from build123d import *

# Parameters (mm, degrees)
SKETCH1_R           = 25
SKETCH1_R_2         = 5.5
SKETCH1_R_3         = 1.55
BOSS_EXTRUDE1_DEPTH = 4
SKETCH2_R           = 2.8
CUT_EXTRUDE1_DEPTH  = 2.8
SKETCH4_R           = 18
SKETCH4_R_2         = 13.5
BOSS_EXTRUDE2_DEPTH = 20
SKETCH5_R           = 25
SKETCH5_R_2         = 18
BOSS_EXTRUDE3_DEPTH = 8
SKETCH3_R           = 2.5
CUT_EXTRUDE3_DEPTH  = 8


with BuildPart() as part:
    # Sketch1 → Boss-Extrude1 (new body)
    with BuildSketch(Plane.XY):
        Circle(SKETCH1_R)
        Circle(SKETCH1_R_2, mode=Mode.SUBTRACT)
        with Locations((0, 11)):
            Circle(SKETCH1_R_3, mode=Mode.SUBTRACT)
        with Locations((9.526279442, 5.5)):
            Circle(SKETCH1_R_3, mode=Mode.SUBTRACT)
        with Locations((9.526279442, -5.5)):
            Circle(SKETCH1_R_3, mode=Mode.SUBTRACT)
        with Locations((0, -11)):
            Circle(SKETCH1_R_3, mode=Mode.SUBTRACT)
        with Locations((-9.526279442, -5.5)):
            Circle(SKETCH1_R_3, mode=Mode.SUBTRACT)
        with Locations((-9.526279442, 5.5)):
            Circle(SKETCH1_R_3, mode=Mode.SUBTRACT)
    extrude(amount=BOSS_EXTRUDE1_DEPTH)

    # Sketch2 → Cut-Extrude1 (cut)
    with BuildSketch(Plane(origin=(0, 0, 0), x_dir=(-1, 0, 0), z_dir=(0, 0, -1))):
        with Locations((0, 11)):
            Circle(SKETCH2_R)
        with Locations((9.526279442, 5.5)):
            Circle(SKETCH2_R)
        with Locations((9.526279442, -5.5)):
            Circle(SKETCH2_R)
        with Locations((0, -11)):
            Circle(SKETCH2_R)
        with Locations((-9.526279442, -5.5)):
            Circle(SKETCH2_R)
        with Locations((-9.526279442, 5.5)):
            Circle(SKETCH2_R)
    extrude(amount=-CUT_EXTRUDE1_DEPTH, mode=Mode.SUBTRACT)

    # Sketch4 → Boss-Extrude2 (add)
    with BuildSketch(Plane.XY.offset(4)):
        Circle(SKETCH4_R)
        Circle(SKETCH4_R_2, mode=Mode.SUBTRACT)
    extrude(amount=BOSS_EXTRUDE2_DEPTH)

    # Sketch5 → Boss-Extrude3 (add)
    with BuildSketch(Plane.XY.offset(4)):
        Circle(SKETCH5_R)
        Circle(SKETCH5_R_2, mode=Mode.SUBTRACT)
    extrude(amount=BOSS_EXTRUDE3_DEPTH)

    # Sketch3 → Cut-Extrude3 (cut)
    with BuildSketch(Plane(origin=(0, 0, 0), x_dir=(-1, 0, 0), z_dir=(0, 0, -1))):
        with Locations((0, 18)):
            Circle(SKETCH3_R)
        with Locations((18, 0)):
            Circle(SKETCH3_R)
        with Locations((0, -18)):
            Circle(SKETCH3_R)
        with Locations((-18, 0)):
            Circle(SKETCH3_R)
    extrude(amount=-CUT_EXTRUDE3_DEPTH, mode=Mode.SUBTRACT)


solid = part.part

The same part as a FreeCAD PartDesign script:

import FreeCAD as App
import Part
import Sketcher
from FreeCAD import Vector

doc = App.newDocument("Part")
params = doc.addObject("Spreadsheet::Sheet", "Params")
for row, (alias, value) in enumerate([
    ("sketch1_diameter", "50 mm"),
    ("sketch1_diameter2", "11 mm"),
    ("sketch1_diameter3", "3.1 mm"),
    ("pad1_length", "4 mm"),
    ("sketch2_diameter", "5.6 mm"),
    ("pocket1_length", "2.8 mm"),
    ("sketch3_diameter", "36 mm"),
    ("sketch3_diameter2", "27 mm"),
    ("pad2_length", "20 mm"),
    ("sketch4_diameter", "50 mm"),
    ("sketch4_diameter2", "36 mm"),
    ("pad3_length", "8 mm"),
    ("sketch5_diameter", "5 mm"),
    ("pocket2_length", "8 mm"),
], start=1):
    params.set(f"A{row}", alias)
    params.set(f"B{row}", "=" + value)
    params.setAlias(f"B{row}", alias)

body = doc.addObject("PartDesign::Body", "Body")

# Sketch on XY plane
sketch1 = doc.addObject("Sketcher::SketchObject", "Sketch")
body.addObject(sketch1)
sketch1.AttachmentSupport = (doc.XY_Plane, [""])
sketch1.MapMode = "FlatFace"
sketch1.addGeometry(Part.Circle(Vector(0, 0, 0), Vector(0, 0, 1), 25), False)
sketch1.addGeometry(Part.Circle(Vector(0, -11, 0), Vector(0, 0, 1), 1.6), False)
sketch1.addGeometry(Part.Circle(Vector(-9.5, -5.5, 0), Vector(0, 0, 1), 1.6), False)
sketch1.addGeometry(Part.Circle(Vector(9.5, -5.5, 0), Vector(0, 0, 1), 1.6), False)
sketch1.addGeometry(Part.Circle(Vector(-9.5, 5.5, 0), Vector(0, 0, 1), 1.6), False)
sketch1.addGeometry(Part.Circle(Vector(0, 0, 0), Vector(0, 0, 1), 5.5), False)
sketch1.addGeometry(Part.Circle(Vector(0, 11, 0), Vector(0, 0, 1), 1.6), False)
sketch1.addGeometry(Part.Circle(Vector(9.5, 5.5, 0), Vector(0, 0, 1), 1.6), False)
sketch1.addConstraint(Sketcher.Constraint("Coincident", 0, 3, -1, 1))
sketch1.addConstraint(Sketcher.Constraint("Coincident", 5, 3, -1, 1))
sketch1.addConstraint(Sketcher.Constraint("Equal", 1, 2))
sketch1.addConstraint(Sketcher.Constraint("Equal", 2, 3))
sketch1.addConstraint(Sketcher.Constraint("Equal", 3, 4))
sketch1.addConstraint(Sketcher.Constraint("Equal", 4, 6))
sketch1.addConstraint(Sketcher.Constraint("Equal", 6, 7))
sketch1.addConstraint(Sketcher.Constraint("Symmetric", 3, 3, 4, 3, -1, 1))
sketch1.addConstraint(Sketcher.Constraint("Symmetric", 1, 3, 6, 3, -1, 1))
sketch1.addConstraint(Sketcher.Constraint("Symmetric", 2, 3, 7, 3, -1, 1))
sketch1.addConstraint(Sketcher.Constraint("Symmetric", 2, 3, 3, 3, -2))
sketch1.addConstraint(Sketcher.Constraint("PointOnObject", 1, 3, -2))
sketch1.addConstraint(Sketcher.Constraint("Diameter", 0, 50.0))
sketch1.addConstraint(Sketcher.Constraint("Diameter", 5, 11.0))
sketch1.addConstraint(Sketcher.Constraint("Diameter", 1, 3.1))
sketch1.addConstraint(Sketcher.Constraint("DistanceY", 1, 3, -1, 1, 11.0))
sketch1.addConstraint(Sketcher.Constraint("DistanceY", 2, 3, 4, 3, 11.0))
sketch1.addConstraint(Sketcher.Constraint("DistanceX", 2, 3, -1, 1, 9.526279))
sketch1.setExpression("Constraints[12]", "Params.sketch1_diameter")
sketch1.setExpression("Constraints[13]", "Params.sketch1_diameter2")
sketch1.setExpression("Constraints[14]", "Params.sketch1_diameter3")
pad1 = doc.addObject("PartDesign::Pad", "Pad")
body.addObject(pad1)
pad1.Profile = sketch1
pad1.setExpression("Length", "Params.pad1_length")

# Sketch on XY plane
sketch2 = doc.addObject("Sketcher::SketchObject", "Sketch001")
body.addObject(sketch2)
sketch2.AttachmentSupport = (doc.XY_Plane, [""])
sketch2.MapMode = "FlatFace"
sketch2.addGeometry(Part.Circle(Vector(0, 11, 0), Vector(0, 0, 1), 2.8), False)
sketch2.addGeometry(Part.Circle(Vector(-9.5, 5.5, 0), Vector(0, 0, 1), 2.8), False)
sketch2.addGeometry(Part.Circle(Vector(-9.5, -5.5, 0), Vector(0, 0, 1), 2.8), False)
sketch2.addGeometry(Part.Circle(Vector(0, -11, 0), Vector(0, 0, 1), 2.8), False)
sketch2.addGeometry(Part.Circle(Vector(9.5, -5.5, 0), Vector(0, 0, 1), 2.8), False)
sketch2.addGeometry(Part.Circle(Vector(9.5, 5.5, 0), Vector(0, 0, 1), 2.8), False)
sketch2.addConstraint(Sketcher.Constraint("Equal", 0, 1))
sketch2.addConstraint(Sketcher.Constraint("Equal", 1, 2))
sketch2.addConstraint(Sketcher.Constraint("Equal", 2, 3))
sketch2.addConstraint(Sketcher.Constraint("Equal", 3, 4))
sketch2.addConstraint(Sketcher.Constraint("Equal", 4, 5))
sketch2.addConstraint(Sketcher.Constraint("Symmetric", 0, 3, 3, 3, -1, 1))
sketch2.addConstraint(Sketcher.Constraint("Symmetric", 1, 3, 4, 3, -1, 1))
sketch2.addConstraint(Sketcher.Constraint("Symmetric", 2, 3, 5, 3, -1, 1))
sketch2.addConstraint(Sketcher.Constraint("Symmetric", 2, 3, 4, 3, -2))
sketch2.addConstraint(Sketcher.Constraint("PointOnObject", 0, 3, -2))
sketch2.addConstraint(Sketcher.Constraint("Diameter", 0, 5.6))
sketch2.addConstraint(Sketcher.Constraint("DistanceY", -1, 1, 0, 3, 11.0))
sketch2.addConstraint(Sketcher.Constraint("DistanceY", 2, 3, 1, 3, 11.0))
sketch2.addConstraint(Sketcher.Constraint("DistanceX", 1, 3, -1, 1, 9.526279))
sketch2.setExpression("Constraints[10]", "Params.sketch2_diameter")
pocket1 = doc.addObject("PartDesign::Pocket", "Pocket")
body.addObject(pocket1)
pocket1.Profile = sketch2
pocket1.setExpression("Length", "Params.pocket1_length")
pocket1.Reversed = True

# Sketch on XY plane
sketch3 = doc.addObject("Sketcher::SketchObject", "Sketch002")
body.addObject(sketch3)
sketch3.AttachmentSupport = (doc.XY_Plane, [""])
sketch3.MapMode = "FlatFace"
sketch3.AttachmentOffset = App.Placement(Vector(0, 0, 4), App.Rotation())
sketch3.addGeometry(Part.Circle(Vector(0, 0, 0), Vector(0, 0, 1), 18), False)
sketch3.addGeometry(Part.Circle(Vector(0, 0, 0), Vector(0, 0, 1), 14), False)
sketch3.addConstraint(Sketcher.Constraint("Coincident", 0, 3, -1, 1))
sketch3.addConstraint(Sketcher.Constraint("Coincident", 1, 3, -1, 1))
sketch3.addConstraint(Sketcher.Constraint("Diameter", 0, 36.0))
sketch3.addConstraint(Sketcher.Constraint("Diameter", 1, 27.0))
sketch3.setExpression("Constraints[2]", "Params.sketch3_diameter")
sketch3.setExpression("Constraints[3]", "Params.sketch3_diameter2")
pad2 = doc.addObject("PartDesign::Pad", "Pad001")
body.addObject(pad2)
pad2.Profile = sketch3
pad2.setExpression("Length", "Params.pad2_length")

# Sketch on XY plane
sketch4 = doc.addObject("Sketcher::SketchObject", "Sketch003")
body.addObject(sketch4)
sketch4.AttachmentSupport = (doc.XY_Plane, [""])
sketch4.MapMode = "FlatFace"
sketch4.AttachmentOffset = App.Placement(Vector(0, 0, 4), App.Rotation())
sketch4.addGeometry(Part.Circle(Vector(0, 0, 0), Vector(0, 0, 1), 25), False)
sketch4.addGeometry(Part.Circle(Vector(0, 0, 0), Vector(0, 0, 1), 18), False)
sketch4.addConstraint(Sketcher.Constraint("Coincident", 0, 3, -1, 1))
sketch4.addConstraint(Sketcher.Constraint("Coincident", 1, 3, -1, 1))
sketch4.addConstraint(Sketcher.Constraint("Diameter", 0, 50.0))
sketch4.addConstraint(Sketcher.Constraint("Diameter", 1, 36.0))
sketch4.setExpression("Constraints[2]", "Params.sketch4_diameter")
sketch4.setExpression("Constraints[3]", "Params.sketch4_diameter2")
pad3 = doc.addObject("PartDesign::Pad", "Pad002")
body.addObject(pad3)
pad3.Profile = sketch4
pad3.setExpression("Length", "Params.pad3_length")

# Sketch on XY plane
sketch5 = doc.addObject("Sketcher::SketchObject", "Sketch004")
body.addObject(sketch5)
sketch5.AttachmentSupport = (doc.XY_Plane, [""])
sketch5.MapMode = "FlatFace"
sketch5.addGeometry(Part.Circle(Vector(0, 18, 0), Vector(0, 0, 1), 2.5), False)
sketch5.addGeometry(Part.Circle(Vector(-18, 0, 0), Vector(0, 0, 1), 2.5), False)
sketch5.addGeometry(Part.Circle(Vector(0, -18, 0), Vector(0, 0, 1), 2.5), False)
sketch5.addGeometry(Part.Circle(Vector(18, 0, 0), Vector(0, 0, 1), 2.5), False)
sketch5.addConstraint(Sketcher.Constraint("Equal", 0, 1))
sketch5.addConstraint(Sketcher.Constraint("Equal", 1, 2))
sketch5.addConstraint(Sketcher.Constraint("Equal", 2, 3))
sketch5.addConstraint(Sketcher.Constraint("Symmetric", 0, 3, 2, 3, -1, 1))
sketch5.addConstraint(Sketcher.Constraint("Symmetric", 1, 3, 3, 3, -1, 1))
sketch5.addConstraint(Sketcher.Constraint("PointOnObject", 0, 3, -2))
sketch5.addConstraint(Sketcher.Constraint("PointOnObject", 1, 3, -1))
sketch5.addConstraint(Sketcher.Constraint("Diameter", 0, 5.0))
sketch5.addConstraint(Sketcher.Constraint("DistanceY", -1, 1, 0, 3, 18.0))
sketch5.addConstraint(Sketcher.Constraint("DistanceX", 1, 3, -1, 1, 18.0))
sketch5.setExpression("Constraints[7]", "Params.sketch5_diameter")
pocket2 = doc.addObject("PartDesign::Pocket", "Pocket001")
body.addObject(pocket2)
pocket2.Profile = sketch5
pocket2.setExpression("Length", "Params.pocket2_length")
pocket2.Reversed = True

doc.recompute()
